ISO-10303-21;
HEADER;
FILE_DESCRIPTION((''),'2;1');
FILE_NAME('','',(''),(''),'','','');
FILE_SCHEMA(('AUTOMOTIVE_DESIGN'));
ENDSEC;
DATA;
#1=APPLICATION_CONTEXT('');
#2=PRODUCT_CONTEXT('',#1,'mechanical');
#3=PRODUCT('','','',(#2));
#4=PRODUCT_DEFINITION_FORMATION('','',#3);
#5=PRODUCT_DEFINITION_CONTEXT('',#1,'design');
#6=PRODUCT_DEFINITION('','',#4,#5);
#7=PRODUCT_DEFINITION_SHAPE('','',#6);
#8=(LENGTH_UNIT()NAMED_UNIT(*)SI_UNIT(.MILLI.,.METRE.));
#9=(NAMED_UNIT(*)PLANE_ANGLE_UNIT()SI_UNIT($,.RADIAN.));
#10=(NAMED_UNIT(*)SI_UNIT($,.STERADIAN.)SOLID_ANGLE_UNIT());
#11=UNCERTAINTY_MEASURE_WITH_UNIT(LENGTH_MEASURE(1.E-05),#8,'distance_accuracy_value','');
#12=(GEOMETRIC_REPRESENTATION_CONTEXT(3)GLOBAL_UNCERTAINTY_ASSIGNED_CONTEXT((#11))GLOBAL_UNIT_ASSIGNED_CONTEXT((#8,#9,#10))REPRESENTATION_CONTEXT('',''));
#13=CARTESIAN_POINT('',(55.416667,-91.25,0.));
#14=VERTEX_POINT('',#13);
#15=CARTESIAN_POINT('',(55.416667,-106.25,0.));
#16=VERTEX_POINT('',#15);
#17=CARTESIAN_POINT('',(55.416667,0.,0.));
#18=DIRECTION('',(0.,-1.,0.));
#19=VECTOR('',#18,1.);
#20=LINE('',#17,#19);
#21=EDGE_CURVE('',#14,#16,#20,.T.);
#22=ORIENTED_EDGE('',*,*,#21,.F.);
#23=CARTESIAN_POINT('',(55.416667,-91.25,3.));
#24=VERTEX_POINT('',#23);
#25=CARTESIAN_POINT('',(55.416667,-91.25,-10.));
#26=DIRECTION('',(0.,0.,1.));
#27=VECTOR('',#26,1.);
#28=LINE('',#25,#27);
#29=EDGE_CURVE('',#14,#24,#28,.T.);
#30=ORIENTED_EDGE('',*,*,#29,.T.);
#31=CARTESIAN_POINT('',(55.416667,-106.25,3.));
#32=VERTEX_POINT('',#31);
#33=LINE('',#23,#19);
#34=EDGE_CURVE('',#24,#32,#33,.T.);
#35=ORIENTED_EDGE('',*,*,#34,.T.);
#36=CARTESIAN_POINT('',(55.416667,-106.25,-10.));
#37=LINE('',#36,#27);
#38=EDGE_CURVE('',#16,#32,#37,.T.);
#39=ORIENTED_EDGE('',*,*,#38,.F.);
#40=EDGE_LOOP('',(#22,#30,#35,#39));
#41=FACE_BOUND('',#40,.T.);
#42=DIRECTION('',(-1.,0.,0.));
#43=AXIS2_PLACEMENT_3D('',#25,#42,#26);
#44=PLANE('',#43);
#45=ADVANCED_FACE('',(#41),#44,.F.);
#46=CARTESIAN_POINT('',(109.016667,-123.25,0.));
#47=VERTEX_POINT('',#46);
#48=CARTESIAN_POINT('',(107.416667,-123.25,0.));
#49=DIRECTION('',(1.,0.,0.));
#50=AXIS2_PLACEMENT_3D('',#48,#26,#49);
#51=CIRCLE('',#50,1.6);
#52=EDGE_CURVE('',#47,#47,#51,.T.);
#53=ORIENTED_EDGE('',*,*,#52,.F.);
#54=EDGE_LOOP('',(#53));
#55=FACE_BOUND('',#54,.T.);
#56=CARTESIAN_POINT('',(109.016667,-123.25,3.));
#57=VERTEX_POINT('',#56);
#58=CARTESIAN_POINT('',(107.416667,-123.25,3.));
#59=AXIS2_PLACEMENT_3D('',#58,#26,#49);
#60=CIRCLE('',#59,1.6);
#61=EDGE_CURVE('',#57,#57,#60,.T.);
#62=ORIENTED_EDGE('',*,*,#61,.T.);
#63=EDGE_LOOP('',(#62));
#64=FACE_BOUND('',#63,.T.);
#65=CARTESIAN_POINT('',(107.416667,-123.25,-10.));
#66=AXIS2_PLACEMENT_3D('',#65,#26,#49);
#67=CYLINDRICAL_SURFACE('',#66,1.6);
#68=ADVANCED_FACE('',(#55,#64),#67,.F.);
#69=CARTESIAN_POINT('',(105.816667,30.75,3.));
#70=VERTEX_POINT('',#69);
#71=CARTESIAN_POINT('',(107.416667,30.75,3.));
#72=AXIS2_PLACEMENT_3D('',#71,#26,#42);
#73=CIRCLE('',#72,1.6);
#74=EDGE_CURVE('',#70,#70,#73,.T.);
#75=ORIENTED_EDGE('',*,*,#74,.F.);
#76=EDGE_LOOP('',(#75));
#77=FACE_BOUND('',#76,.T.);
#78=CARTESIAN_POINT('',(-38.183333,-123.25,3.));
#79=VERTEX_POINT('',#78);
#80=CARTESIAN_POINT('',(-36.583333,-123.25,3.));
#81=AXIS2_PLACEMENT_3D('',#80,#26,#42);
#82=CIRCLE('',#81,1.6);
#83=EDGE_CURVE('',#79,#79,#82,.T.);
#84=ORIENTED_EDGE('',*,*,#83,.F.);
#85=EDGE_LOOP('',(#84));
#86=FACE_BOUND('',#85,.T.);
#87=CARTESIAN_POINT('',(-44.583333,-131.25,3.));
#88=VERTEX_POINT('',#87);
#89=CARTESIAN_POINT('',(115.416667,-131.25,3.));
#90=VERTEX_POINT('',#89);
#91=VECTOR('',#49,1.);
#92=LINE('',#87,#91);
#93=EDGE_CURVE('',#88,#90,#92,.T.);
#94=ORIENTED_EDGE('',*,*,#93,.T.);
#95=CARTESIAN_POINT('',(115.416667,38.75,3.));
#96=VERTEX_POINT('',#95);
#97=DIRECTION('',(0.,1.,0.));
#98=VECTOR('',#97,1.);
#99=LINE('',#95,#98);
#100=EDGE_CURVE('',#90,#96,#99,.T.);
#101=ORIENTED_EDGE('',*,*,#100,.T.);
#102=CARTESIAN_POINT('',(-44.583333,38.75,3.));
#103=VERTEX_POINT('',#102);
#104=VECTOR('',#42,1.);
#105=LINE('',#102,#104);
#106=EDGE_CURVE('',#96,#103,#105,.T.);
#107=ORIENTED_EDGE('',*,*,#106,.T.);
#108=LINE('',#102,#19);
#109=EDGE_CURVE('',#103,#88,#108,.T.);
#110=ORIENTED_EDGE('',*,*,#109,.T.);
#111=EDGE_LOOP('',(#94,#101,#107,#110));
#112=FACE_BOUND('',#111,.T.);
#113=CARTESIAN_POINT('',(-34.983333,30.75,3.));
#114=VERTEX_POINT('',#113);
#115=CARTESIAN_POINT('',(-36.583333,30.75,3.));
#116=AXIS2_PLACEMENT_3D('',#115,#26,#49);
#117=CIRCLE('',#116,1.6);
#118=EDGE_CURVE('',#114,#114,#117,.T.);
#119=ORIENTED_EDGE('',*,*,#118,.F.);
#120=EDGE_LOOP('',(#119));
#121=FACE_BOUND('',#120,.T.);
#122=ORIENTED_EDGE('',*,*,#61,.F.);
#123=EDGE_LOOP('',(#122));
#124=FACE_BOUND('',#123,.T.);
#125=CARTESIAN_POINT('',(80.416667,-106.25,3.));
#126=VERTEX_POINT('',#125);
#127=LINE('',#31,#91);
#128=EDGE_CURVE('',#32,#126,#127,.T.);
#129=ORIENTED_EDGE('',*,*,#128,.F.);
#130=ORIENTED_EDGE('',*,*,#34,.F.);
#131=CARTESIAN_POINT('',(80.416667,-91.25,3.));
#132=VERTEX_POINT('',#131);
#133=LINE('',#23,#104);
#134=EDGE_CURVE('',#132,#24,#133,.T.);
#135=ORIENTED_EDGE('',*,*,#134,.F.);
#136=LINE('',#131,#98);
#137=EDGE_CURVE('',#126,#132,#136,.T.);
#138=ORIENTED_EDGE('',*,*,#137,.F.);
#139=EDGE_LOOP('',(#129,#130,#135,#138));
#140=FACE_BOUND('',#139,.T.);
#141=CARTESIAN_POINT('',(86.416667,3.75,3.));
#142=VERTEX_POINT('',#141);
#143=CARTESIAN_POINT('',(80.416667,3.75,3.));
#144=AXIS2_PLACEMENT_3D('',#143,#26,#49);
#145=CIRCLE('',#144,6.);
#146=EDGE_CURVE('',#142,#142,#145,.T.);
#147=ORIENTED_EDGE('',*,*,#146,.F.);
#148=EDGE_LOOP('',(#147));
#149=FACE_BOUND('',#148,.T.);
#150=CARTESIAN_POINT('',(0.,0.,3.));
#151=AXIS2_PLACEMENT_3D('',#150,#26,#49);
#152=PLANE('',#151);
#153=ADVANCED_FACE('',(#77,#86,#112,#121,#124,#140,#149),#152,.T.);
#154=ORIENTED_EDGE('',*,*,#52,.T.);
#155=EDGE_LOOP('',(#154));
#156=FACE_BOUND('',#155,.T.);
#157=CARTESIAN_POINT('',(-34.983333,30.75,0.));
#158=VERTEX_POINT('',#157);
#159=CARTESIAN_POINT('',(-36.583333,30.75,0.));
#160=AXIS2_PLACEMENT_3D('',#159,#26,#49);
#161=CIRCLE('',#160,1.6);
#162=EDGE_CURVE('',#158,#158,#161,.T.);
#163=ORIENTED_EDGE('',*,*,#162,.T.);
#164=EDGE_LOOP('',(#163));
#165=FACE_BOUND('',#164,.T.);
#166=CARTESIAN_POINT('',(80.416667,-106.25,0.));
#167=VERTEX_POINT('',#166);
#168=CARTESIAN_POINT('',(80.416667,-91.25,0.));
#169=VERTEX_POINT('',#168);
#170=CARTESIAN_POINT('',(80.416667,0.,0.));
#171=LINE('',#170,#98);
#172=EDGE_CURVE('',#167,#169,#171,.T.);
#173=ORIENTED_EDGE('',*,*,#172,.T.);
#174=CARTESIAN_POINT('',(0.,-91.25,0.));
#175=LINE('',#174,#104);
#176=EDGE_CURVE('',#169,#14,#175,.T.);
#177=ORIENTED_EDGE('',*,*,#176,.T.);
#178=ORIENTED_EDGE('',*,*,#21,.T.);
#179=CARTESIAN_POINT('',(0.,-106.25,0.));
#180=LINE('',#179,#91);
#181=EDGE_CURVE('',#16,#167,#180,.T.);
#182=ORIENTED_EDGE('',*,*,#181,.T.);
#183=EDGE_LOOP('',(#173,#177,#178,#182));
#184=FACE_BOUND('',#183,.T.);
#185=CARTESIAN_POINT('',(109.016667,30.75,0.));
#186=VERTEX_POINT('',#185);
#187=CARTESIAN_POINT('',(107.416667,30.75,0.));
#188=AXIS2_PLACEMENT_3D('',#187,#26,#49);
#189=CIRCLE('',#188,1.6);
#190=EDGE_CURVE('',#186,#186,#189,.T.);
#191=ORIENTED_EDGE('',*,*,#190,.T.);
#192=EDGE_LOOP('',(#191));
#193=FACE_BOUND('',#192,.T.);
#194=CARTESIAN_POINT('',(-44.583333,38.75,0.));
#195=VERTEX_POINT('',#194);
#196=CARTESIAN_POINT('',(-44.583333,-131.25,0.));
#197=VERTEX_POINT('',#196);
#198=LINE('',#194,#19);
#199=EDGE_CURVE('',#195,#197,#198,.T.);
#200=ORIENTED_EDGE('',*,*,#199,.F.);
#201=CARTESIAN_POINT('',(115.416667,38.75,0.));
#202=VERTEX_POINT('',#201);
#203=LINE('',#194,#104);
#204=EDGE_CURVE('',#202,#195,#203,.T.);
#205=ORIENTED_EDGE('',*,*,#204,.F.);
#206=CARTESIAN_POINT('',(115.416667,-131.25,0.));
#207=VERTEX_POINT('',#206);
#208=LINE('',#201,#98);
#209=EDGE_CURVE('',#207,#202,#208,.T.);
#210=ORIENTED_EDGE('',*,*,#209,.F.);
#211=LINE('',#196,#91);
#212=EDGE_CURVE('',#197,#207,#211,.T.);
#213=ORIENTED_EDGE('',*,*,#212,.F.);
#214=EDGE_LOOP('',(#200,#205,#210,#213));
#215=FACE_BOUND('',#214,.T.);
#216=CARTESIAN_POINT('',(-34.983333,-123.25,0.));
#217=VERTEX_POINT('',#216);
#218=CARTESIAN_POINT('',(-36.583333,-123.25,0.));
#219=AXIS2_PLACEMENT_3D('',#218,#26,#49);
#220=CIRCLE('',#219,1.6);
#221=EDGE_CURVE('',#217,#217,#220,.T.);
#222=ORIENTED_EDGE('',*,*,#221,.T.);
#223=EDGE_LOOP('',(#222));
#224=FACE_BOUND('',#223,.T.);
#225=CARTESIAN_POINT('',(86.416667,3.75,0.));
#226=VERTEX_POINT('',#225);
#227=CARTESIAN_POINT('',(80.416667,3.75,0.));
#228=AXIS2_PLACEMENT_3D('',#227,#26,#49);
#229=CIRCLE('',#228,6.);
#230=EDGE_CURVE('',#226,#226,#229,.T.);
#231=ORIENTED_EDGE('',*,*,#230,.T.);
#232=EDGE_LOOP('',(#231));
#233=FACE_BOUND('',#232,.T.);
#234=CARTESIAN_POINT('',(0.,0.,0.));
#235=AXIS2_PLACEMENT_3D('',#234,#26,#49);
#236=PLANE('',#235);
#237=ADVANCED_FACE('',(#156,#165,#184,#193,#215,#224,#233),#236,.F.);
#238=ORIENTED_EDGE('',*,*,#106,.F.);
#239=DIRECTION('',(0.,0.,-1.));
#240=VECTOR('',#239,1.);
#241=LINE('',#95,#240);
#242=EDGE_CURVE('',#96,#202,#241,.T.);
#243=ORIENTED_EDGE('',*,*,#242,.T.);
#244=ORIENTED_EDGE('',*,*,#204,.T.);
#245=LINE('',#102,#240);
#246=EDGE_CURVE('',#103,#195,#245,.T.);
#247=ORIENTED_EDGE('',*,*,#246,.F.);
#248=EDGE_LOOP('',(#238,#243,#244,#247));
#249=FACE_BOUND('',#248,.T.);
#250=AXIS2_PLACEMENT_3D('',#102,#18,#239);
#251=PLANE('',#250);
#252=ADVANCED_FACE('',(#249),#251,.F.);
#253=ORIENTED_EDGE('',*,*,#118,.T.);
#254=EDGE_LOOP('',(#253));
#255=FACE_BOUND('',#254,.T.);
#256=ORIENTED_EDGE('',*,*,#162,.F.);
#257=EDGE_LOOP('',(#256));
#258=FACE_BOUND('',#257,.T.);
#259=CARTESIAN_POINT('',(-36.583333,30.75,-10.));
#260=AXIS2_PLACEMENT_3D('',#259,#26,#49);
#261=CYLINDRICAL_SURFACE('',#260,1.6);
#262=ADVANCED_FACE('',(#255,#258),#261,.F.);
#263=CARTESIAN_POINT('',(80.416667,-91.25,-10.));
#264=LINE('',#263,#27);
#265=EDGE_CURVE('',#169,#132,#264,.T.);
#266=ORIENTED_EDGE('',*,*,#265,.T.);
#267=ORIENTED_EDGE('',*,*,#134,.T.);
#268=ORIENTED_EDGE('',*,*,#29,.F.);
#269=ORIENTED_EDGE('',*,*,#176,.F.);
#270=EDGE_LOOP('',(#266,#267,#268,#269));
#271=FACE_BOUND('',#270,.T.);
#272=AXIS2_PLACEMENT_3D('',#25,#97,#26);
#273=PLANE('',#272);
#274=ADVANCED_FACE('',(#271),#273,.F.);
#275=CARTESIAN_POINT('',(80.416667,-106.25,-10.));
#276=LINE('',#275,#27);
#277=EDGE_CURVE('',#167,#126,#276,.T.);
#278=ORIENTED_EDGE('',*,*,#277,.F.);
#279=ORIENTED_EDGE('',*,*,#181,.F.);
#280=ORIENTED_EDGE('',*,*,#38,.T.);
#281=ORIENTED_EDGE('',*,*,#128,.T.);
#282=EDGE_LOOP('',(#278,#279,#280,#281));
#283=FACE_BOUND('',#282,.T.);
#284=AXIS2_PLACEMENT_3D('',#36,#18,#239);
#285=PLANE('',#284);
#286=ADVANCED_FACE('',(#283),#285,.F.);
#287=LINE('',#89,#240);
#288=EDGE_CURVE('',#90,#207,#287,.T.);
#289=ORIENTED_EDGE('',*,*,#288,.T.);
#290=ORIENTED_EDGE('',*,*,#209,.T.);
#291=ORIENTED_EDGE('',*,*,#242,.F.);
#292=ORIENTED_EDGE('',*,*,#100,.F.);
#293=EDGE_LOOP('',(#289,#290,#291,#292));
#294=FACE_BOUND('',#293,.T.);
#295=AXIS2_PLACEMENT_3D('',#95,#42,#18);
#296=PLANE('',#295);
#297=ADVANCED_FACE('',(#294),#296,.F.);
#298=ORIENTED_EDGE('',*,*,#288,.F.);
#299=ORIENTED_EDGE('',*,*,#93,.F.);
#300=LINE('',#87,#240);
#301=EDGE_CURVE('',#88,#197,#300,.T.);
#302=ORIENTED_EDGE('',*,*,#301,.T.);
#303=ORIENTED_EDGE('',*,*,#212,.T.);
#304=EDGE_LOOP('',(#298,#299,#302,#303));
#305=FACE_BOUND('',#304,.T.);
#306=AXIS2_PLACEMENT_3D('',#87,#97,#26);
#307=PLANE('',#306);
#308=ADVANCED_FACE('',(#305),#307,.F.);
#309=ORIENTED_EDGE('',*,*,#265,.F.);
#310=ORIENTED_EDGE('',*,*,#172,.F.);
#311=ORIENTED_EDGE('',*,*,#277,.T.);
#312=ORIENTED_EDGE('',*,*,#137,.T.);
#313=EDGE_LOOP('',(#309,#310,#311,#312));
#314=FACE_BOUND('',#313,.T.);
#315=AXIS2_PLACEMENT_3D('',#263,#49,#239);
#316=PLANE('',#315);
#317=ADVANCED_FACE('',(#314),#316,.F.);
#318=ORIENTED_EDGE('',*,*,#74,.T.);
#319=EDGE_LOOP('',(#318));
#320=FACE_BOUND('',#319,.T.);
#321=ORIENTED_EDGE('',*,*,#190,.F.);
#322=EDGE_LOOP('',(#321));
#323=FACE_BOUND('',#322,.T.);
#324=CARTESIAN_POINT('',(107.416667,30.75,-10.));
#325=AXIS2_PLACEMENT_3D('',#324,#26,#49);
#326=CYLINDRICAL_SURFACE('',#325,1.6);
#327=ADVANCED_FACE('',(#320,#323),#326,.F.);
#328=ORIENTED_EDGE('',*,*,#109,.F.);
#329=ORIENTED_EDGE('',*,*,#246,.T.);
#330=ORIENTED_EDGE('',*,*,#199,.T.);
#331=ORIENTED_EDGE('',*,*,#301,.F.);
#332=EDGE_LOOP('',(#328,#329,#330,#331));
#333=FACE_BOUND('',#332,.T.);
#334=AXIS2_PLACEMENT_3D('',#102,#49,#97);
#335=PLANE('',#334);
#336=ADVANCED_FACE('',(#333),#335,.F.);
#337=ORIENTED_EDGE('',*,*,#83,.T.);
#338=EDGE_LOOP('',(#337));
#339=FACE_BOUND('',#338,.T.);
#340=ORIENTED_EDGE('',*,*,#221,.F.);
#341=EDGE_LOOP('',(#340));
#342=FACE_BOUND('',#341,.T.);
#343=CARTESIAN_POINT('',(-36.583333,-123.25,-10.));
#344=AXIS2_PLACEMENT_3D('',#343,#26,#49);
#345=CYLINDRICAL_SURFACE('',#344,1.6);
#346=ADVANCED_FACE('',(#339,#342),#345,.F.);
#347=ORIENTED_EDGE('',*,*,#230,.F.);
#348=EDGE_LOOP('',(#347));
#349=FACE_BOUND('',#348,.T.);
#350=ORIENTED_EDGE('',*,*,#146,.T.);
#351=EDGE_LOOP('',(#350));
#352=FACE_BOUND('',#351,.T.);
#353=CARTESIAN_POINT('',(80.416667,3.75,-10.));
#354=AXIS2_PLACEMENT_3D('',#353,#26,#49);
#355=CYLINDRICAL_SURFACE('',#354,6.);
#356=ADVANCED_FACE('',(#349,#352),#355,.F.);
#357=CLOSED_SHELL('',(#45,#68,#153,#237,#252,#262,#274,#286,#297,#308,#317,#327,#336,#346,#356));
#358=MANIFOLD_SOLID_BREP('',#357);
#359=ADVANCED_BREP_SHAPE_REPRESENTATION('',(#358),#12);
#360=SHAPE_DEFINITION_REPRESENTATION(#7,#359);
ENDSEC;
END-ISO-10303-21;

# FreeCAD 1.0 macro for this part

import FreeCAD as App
import Part
import Sketcher
from FreeCAD import Vector


def add_polygon(sketch, points):
    """Adds a closed chain of lines whose ends are joined by coincident constraints."""
    first, n = sketch.GeometryCount, len(points)
    for a, b in zip(points, points[1:] + points[:1]):
        sketch.addGeometry(Part.LineSegment(App.Vector(*a, 0), App.Vector(*b, 0)), False)
    for i in range(n):
        sketch.addConstraint(Sketcher.Constraint("Coincident", first + i, 2, first + (i + 1) % n, 1))

doc = App.newDocument("Part")
params = doc.addObject("Spreadsheet::Sheet", "Params")
for row, (alias, value) in enumerate([
    ("sketch1_width", "160 mm"),
    ("sketch1_height", "170 mm"),
    ("pad1_length", "3 mm"),
    ("sketch2_diameter", "3.2 mm"),
    ("pocket1_length", "13 mm"),
    ("sketch3_diameter", "12 mm"),
    ("pocket2_length", "13 mm"),
    ("sketch4_width", "25 mm"),
    ("sketch4_height", "15 mm"),
    ("pocket3_length", "13 mm"),
], start=1):
    params.set(f"A{row}", alias)
    params.set(f"B{row}", "=" + value)
    params.setAlias(f"B{row}", alias)

body = doc.addObject("PartDesign::Body", "Body")

# Sketch on XY plane
sketch1 = body.newObject("Sketcher::SketchObject", "Sketch")
sketch1.AttachmentSupport = (doc.getObject("XY_Plane"), [""])
sketch1.MapMode = "FlatFace"
add_polygon(sketch1, [(-45, 39), (-45, -131), (115, -131), (115, 39)])  # lines 0-3
sketch1.addConstraint([
    Sketcher.Constraint("Vertical", 0),
    Sketcher.Constraint("Horizontal", 1),
    Sketcher.Constraint("Vertical", 2),
    Sketcher.Constraint("Horizontal", 3),
    Sketcher.Constraint("DistanceX", 1, 1, 1, 2, 160.0),
    Sketcher.Constraint("DistanceY", 0, 2, 0, 1, 170.0),
    Sketcher.Constraint("DistanceY", 0, 2, -1, 1, 131.25),
    Sketcher.Constraint("DistanceX", 0, 2, -1, 1, 44.583333),
])
sketch1.setExpression("Constraints[8]", "Params.sketch1_width")
sketch1.setExpression("Constraints[9]", "Params.sketch1_height")
pad1 = body.newObject("PartDesign::Pad", "Pad")
pad1.Profile = sketch1
pad1.setExpression("Length", "Params.pad1_length")

# Sketch on XY plane
sketch2 = body.newObject("Sketcher::SketchObject", "Sketch001")
sketch2.AttachmentSupport = (doc.getObject("XY_Plane"), [""])
sketch2.MapMode = "FlatFace"
sketch2.AttachmentOffset = App.Placement(Vector(0, 0, 3), App.Rotation())
sketch2.addGeometry([
    Part.Circle(Vector(-36.6, 30.8, 0), Vector(0, 0, 1), 1.6),
    Part.Circle(Vector(107.4, 30.8, 0), Vector(0, 0, 1), 1.6),
    Part.Circle(Vector(107.4, -123.2, 0), Vector(0, 0, 1), 1.6),
    Part.Circle(Vector(-36.6, -123.2, 0), Vector(0, 0, 1), 1.6),
], False)
sketch2.addConstraint([
    Sketcher.Constraint("Equal", 0, 1),
    Sketcher.Constraint("Equal", 1, 2),
    Sketcher.Constraint("Equal", 2, 3),
    Sketcher.Constraint("Horizontal", 0, 3, 1, 3),
    Sketcher.Constraint("Horizontal", 2, 3, 3, 3),
    Sketcher.Constraint("Vertical", 1, 3, 2, 3),
    Sketcher.Constraint("Vertical", 0, 3, 3, 3),
    Sketcher.Constraint("Diameter", 0, 3.2),
    Sketcher.Constraint("DistanceX", 0, 3, 1, 3, 144.0),
    Sketcher.Constraint("DistanceY", 2, 3, 1, 3, 154.0),
    Sketcher.Constraint("DistanceY", -1, 1, 0, 3, 30.75),
    Sketcher.Constraint("DistanceX", 0, 3, -1, 1, 36.583333),
])
sketch2.setExpression("Constraints[7]", "Params.sketch2_diameter")
pocket1 = body.newObject("PartDesign::Pocket", "Pocket")
pocket1.Profile = sketch2
pocket1.setExpression("Length", "Params.pocket1_length")

# Sketch on XY plane
sketch3 = body.newObject("Sketcher::SketchObject", "Sketch002")
sketch3.AttachmentSupport = (doc.getObject("XY_Plane"), [""])
sketch3.MapMode = "FlatFace"
sketch3.AttachmentOffset = App.Placement(Vector(0, 0, 3), App.Rotation())
sketch3.addGeometry(Part.Circle(Vector(80, 4, 0), Vector(0, 0, 1), 6), False)
sketch3.addConstraint([
    Sketcher.Constraint("Diameter", 0, 12.0),
    Sketcher.Constraint("DistanceY", -1, 1, 0, 3, 3.75),
    Sketcher.Constraint("DistanceX", -1, 1, 0, 3, 80.416667),
])
sketch3.setExpression("Constraints[0]", "Params.sketch3_diameter")
pocket2 = body.newObject("PartDesign::Pocket", "Pocket001")
pocket2.Profile = sketch3
pocket2.setExpression("Length", "Params.pocket2_length")

# Sketch on XY plane
sketch4 = body.newObject("Sketcher::SketchObject", "Sketch003")
sketch4.AttachmentSupport = (doc.getObject("XY_Plane"), [""])
sketch4.MapMode = "FlatFace"
sketch4.AttachmentOffset = App.Placement(Vector(0, 0, 3), App.Rotation())
add_polygon(sketch4, [(55, -91), (55, -106), (80, -106), (80, -91)])  # lines 0-3
sketch4.addConstraint([
    Sketcher.Constraint("Vertical", 0),
    Sketcher.Constraint("Horizontal", 1),
    Sketcher.Constraint("Vertical", 2),
    Sketcher.Constraint("Horizontal", 3),
    Sketcher.Constraint("DistanceX", 1, 1, 1, 2, 25.0),
    Sketcher.Constraint("DistanceY", 0, 2, 0, 1, 15.0),
    Sketcher.Constraint("DistanceY", 0, 2, -1, 1, 106.25),
    Sketcher.Constraint("DistanceX", -1, 1, 0, 2, 55.416667),
])
sketch4.setExpression("Constraints[8]", "Params.sketch4_width")
sketch4.setExpression("Constraints[9]", "Params.sketch4_height")
pocket3 = body.newObject("PartDesign::Pocket", "Pocket002")
pocket3.Profile = sketch4
pocket3.setExpression("Length", "Params.pocket3_length")

doc.recompute()
